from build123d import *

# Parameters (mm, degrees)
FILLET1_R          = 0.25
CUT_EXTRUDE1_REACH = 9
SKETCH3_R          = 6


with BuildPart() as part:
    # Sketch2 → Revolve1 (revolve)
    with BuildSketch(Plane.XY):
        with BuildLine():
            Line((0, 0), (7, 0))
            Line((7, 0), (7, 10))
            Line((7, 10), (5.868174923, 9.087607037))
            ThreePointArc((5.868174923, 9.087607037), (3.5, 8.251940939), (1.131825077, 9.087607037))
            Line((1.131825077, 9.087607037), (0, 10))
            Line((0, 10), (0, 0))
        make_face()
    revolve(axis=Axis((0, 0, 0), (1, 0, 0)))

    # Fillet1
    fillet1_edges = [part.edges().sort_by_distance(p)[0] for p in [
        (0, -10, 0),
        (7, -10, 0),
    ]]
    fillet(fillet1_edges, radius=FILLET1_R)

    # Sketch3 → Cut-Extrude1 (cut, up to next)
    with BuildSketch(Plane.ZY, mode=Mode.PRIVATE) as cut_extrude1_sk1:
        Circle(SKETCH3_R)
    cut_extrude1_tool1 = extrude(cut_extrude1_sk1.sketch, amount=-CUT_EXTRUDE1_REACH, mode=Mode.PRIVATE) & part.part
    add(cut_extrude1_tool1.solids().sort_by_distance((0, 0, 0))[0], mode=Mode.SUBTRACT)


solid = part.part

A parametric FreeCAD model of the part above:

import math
import FreeCAD as App
import Part
import Sketcher

V = App.Vector


def edges_at(feature, points):
    """Names of the edges that pass closest to the given points."""
    edges = feature.Shape.Edges
    near = lambda p: min(range(len(edges)), key=lambda i: edges[i].distToShape(Part.Vertex(*p))[0])
    return sorted({f"Edge{near(p) + 1}" for p in points})

doc = App.newDocument("Part")
body = doc.addObject("PartDesign::Body", "Body")

# Sketch on XY plane
sketch1 = body.newObject("Sketcher::SketchObject", "Sketch")
sketch1.AttachmentSupport = (doc.getObject("XY_Plane"), [""])
sketch1.MapMode = "FlatFace"
sketch1.addGeometry([
    Part.LineSegment(V(0, 0, 0), V(7, 0, 0)),  # 0
    Part.LineSegment(V(7, 0, 0), V(7, 10, 0)),  # 1
    Part.LineSegment(V(7, 10, 0), V(5.868175, 9.087607, 0)),  # 2
    Part.ArcOfCircle(Part.Circle(V(3.5, 12.025332, 0), V(0, 0, 1), 3.773391), math.radians(-128.87317), math.radians(-51.12683)),  # 3
    Part.LineSegment(V(1.131825, 9.087607, 0), V(0, 10, 0)),  # 4
    Part.LineSegment(V(0, 10, 0), V(0, 0, 0)),  # 5
], False)
sketch1.addConstraint([
    Sketcher.Constraint("Coincident", 0, 2, 1, 1),
    Sketcher.Constraint("Coincident", 1, 2, 2, 1),
    Sketcher.Constraint("Tangent", 2, 2, 3, 2),
    Sketcher.Constraint("Tangent", 3, 1, 4, 1),
    Sketcher.Constraint("Coincident", 4, 2, 5, 1),
    Sketcher.Constraint("Coincident", 5, 2, 0, 1),
    Sketcher.Constraint("Horizontal", 0),
    Sketcher.Constraint("Vertical", 1),
    Sketcher.Constraint("Vertical", 5),
    Sketcher.Constraint("Coincident", 5, 2, -1, 1),
    Sketcher.Constraint("Horizontal", 2, 2, 3, 1),
    Sketcher.Constraint("Horizontal", 1, 2, 4, 2),
    Sketcher.Constraint("DistanceX", 0, 1, 0, 2, 7.0),
    Sketcher.Constraint("DistanceY", 1, 1, 1, 2, 10.0),
    Sketcher.Constraint("Radius", 3, 3.773391),
    Sketcher.Constraint("DistanceX", 3, 1, 2, 2, 4.73635),
])
revolution = body.newObject("PartDesign::Revolution", "Revolution")
revolution.Profile = sketch1
revolution.ReferenceAxis = (sketch1, ["H_Axis"])
revolution.Angle = 360
doc.recompute()

fillet = body.newObject("PartDesign::Fillet", "Fillet")
fillet.Base = (revolution, edges_at(revolution, [(0, -10, 0), (7, -10, 0)]))
fillet.Radius = 0.25

# Sketch on YZ plane
sketch2 = body.newObject("Sketcher::SketchObject", "Sketch001")
sketch2.AttachmentSupport = (doc.getObject("YZ_Plane"), [""])
sketch2.MapMode = "FlatFace"
sketch2.addGeometry(Part.Circle(V(0, 0, 0), V(0, 0, 1), 6), False)
sketch2.addConstraint([
    Sketcher.Constraint("Coincident", 0, 3, -1, 1),
    Sketcher.Constraint("Diameter", 0, 12.0),
])
pocket1 = body.newObject("PartDesign::Pocket", "Pocket")
pocket1.Profile = sketch2
pocket1.Type = "UpToFirst"
pocket1.Reversed = True

doc.recompute()
